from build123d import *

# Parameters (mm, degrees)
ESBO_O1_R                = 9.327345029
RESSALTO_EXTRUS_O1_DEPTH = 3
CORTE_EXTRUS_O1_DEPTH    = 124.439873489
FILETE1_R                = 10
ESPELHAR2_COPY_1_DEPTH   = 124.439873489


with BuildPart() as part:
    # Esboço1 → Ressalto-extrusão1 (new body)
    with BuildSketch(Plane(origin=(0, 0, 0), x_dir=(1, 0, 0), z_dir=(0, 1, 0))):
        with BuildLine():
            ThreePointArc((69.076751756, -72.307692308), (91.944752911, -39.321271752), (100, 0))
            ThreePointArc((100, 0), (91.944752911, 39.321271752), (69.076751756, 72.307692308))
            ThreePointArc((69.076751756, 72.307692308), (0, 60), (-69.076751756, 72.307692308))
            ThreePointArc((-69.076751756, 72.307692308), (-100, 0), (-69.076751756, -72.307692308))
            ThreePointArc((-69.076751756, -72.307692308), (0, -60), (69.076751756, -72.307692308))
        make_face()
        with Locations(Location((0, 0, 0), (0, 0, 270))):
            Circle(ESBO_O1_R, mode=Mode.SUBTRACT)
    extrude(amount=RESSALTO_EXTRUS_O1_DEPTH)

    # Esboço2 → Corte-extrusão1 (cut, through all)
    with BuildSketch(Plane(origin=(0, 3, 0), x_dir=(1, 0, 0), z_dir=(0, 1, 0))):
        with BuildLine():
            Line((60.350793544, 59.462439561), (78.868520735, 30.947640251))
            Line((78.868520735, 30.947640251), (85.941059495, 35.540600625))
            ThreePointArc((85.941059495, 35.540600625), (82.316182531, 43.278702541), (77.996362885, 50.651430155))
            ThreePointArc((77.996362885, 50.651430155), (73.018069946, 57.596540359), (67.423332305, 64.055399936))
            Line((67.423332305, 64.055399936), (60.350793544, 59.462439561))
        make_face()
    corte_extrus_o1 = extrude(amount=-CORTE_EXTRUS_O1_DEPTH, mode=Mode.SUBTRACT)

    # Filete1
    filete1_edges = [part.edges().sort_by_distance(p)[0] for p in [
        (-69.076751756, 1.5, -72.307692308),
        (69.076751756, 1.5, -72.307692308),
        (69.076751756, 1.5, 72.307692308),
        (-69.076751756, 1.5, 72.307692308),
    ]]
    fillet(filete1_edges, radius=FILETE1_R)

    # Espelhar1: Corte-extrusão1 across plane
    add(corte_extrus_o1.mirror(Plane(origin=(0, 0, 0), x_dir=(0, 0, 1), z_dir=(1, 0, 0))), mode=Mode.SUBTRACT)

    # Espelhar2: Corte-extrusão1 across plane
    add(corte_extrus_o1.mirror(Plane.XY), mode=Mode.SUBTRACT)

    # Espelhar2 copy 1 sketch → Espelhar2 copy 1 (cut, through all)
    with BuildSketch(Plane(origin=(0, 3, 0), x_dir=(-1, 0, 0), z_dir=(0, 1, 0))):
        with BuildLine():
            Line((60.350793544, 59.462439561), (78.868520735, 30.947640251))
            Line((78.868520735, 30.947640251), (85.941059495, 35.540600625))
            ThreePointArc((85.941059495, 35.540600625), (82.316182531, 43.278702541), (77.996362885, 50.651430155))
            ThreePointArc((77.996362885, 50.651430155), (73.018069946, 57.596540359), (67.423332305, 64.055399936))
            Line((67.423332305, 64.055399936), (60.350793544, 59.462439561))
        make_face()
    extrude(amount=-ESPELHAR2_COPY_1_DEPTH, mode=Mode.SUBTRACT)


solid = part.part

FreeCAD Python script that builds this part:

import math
import FreeCAD as App
import Part
import Sketcher
Q = App.Units.Quantity


def edges_at(feature, points):
    """Names of the edges that pass closest to the given points."""
    edges = feature.Shape.Edges
    near = lambda p: min(range(len(edges)), key=lambda i: edges[i].distToShape(Part.Vertex(*p))[0])
    return sorted({f"Edge{near(p) + 1}" for p in points})

doc = App.newDocument("Part")
body = doc.addObject("PartDesign::Body", "Body")

sketch1 = doc.addObject("Sketcher::SketchObject", "Sketch")
body.addObject(sketch1)
sketch1.AttachmentSupport = (doc.XZ_Plane, [""])
sketch1.MapMode = "FlatFace"
sketch1.addGeometry([
    Part.ArcOfCircle(Part.Circle(App.Vector(0, 0, 0), App.Vector(0, 0, 1), 100), math.radians(0), math.radians(46)),
    Part.ArcOfCircle(Part.Circle(App.Vector(0, 0, 0), App.Vector(0, 0, 1), 100), math.radians(-46), math.radians(0)),
    Part.ArcOfCircle(Part.Circle(App.Vector(0, -260, 0), App.Vector(0, 0, 1), 200), math.radians(70), math.radians(110)),
    Part.ArcOfCircle(Part.Circle(App.Vector(0, 0, 0), App.Vector(0, 0, 1), 100), math.radians(134), math.radians(226)),
    Part.ArcOfCircle(Part.Circle(App.Vector(0, 260, 0), App.Vector(0, 0, 1), 200), math.radians(-110), math.radians(-70)),
    Part.Circle(App.Vector(0, 0, 0), App.Vector(0, 0, 1), 9),
], False)
sketch1.addConstraint([
    Sketcher.Constraint("Tangent", 0, 1, 1, 2),
    Sketcher.Constraint("Coincident", 1, 1, 2, 1),
    Sketcher.Constraint("Coincident", 2, 2, 3, 2),
    Sketcher.Constraint("Coincident", 3, 1, 4, 1),
    Sketcher.Constraint("Coincident", 4, 2, 0, 2),
    Sketcher.Constraint("Coincident", 0, 3, -1, 1),
    Sketcher.Constraint("Coincident", 3, 3, -1, 1),
    Sketcher.Constraint("Coincident", 5, 3, -1, 1),
    Sketcher.Constraint("Equal", 0, 1),
    Sketcher.Constraint("Equal", 1, 3),
    Sketcher.Constraint("Equal", 2, 4),
    Sketcher.Constraint("Symmetric", 2, 3, 4, 3, -1, 1),
    Sketcher.Constraint("PointOnObject", 2, 3, -2),
    Sketcher.Constraint("PointOnObject", 0, 1, -1),
    Sketcher.Constraint("Radius", 0, Q("100 mm")),
    Sketcher.Constraint("Radius", 2, Q("200 mm")),
    Sketcher.Constraint("DistanceY", 2, 3, -1, 1, Q("260 mm")),
    Sketcher.Constraint("Diameter", 5, Q("18.65469 mm")),
])
pad1 = doc.addObject("PartDesign::Pad", "Pad")
body.addObject(pad1)
pad1.Profile = sketch1
pad1.Length = 3
pad1.Reversed = True

sketch2 = doc.addObject("Sketcher::SketchObject", "Sketch001")
body.addObject(sketch2)
sketch2.AttachmentSupport = (doc.XZ_Plane, [""])
sketch2.MapMode = "FlatFace"
sketch2.AttachmentOffset = App.Placement(App.Vector(0, 0, -3), App.Rotation())
sketch2.addGeometry([
    Part.LineSegment(App.Vector(60, -59, 0), App.Vector(79, -31, 0)),
    Part.LineSegment(App.Vector(79, -31, 0), App.Vector(86, -36, 0)),
    Part.ArcOfCircle(Part.Circle(App.Vector(0, 0, 0), App.Vector(0, 0, 1), 93), math.radians(-33), math.radians(-22.47)),
    Part.ArcOfCircle(Part.Circle(App.Vector(0, 0, 0), App.Vector(0, 0, 1), 93), math.radians(-43.53), math.radians(-33)),
    Part.LineSegment(App.Vector(67, -64, 0), App.Vector(60, -59, 0)),
], False)
sketch2.addConstraint([
    Sketcher.Constraint("Coincident", 0, 2, 1, 1),
    Sketcher.Constraint("Coincident", 1, 2, 2, 2),
    Sketcher.Constraint("Tangent", 2, 1, 3, 2),
    Sketcher.Constraint("Coincident", 3, 1, 4, 1),
    Sketcher.Constraint("Coincident", 4, 2, 0, 1),
    Sketcher.Constraint("Coincident", 2, 3, -1, 1),
    Sketcher.Constraint("Equal", 2, 3),
    Sketcher.Constraint("Perpendicular", 0, 1),
    Sketcher.Constraint("Parallel", 1, 4),
    Sketcher.Constraint("Equal", 1, 4),
    Sketcher.Constraint("Radius", 2, Q("93 mm")),
    Sketcher.Constraint("Angle", 0, Q("57 deg")),
    Sketcher.Constraint("Distance", 0, Q("34 mm")),
    Sketcher.Constraint("DistanceX", -1, 1, 0, 2, Q("78.868521 mm")),
    Sketcher.Constraint("DistanceY", 2, 1, -1, 1, Q("50.65143 mm")),
])
pocket1 = doc.addObject("PartDesign::Pocket", "Pocket")
body.addObject(pocket1)
pocket1.Profile = sketch2
pocket1.Type = "ThroughAll"
pocket1.Reversed = True
doc.recompute()

fillet = doc.addObject("PartDesign::Fillet", "Fillet")
body.addObject(fillet)
fillet.Base = (pocket1, edges_at(pocket1, [
    (-69.077, 1.5, -72.308),
    (69.077, 1.5, -72.308),
    (69.077, 1.5, 72.308),
    (-69.077, 1.5, 72.308),
]))
fillet.Radius = 10
doc.recompute()

mirrored = doc.addObject("PartDesign::Mirrored", "Mirrored")
body.addObject(mirrored)
mirrored.Originals = [pocket1]
mirrored.MirrorPlane = (doc.YZ_Plane, [""])
body.Tip = mirrored
doc.recompute()

mirrored2 = doc.addObject("PartDesign::Mirrored", "Mirrored001")
body.addObject(mirrored2)
mirrored2.Originals = [pocket1]
mirrored2.MirrorPlane = (doc.XY_Plane, [""])
body.Tip = mirrored2

sketch3 = doc.addObject("Sketcher::SketchObject", "Sketch002")
body.addObject(sketch3)
sketch3.AttachmentSupport = (doc.XZ_Plane, [""])
sketch3.MapMode = "FlatFace"
sketch3.AttachmentOffset = App.Placement(App.Vector(0, 0, -3), App.Rotation())
sketch3.addGeometry([
    Part.LineSegment(App.Vector(-60, 59, 0), App.Vector(-79, 31, 0)),
    Part.LineSegment(App.Vector(-79, 31, 0), App.Vector(-86, 36, 0)),
    Part.ArcOfCircle(Part.Circle(App.Vector(0, 0, 0), App.Vector(0, 0, 1), 93), math.radians(147), math.radians(157.53)),
    Part.ArcOfCircle(Part.Circle(App.Vector(0, 0, 0), App.Vector(0, 0, 1), 93), math.radians(136.47), math.radians(147)),
    Part.LineSegment(App.Vector(-67, 64, 0), App.Vector(-60, 59, 0)),
], False)
sketch3.addConstraint([
    Sketcher.Constraint("Coincident", 0, 2, 1, 1),
    Sketcher.Constraint("Coincident", 1, 2, 2, 2),
    Sketcher.Constraint("Tangent", 2, 1, 3, 2),
    Sketcher.Constraint("Coincident", 3, 1, 4, 1),
    Sketcher.Constraint("Coincident", 4, 2, 0, 1),
    Sketcher.Constraint("Coincident", 2, 3, -1, 1),
    Sketcher.Constraint("Equal", 2, 3),
    Sketcher.Constraint("Perpendicular", 0, 1),
    Sketcher.Constraint("Parallel", 1, 4),
    Sketcher.Constraint("Equal", 1, 4),
    Sketcher.Constraint("Radius", 2, Q("93 mm")),
    Sketcher.Constraint("Angle", 0, Q("-123 deg")),
    Sketcher.Constraint("Distance", 0, Q("34 mm")),
    Sketcher.Constraint("DistanceX", 0, 2, -1, 1, Q("78.868521 mm")),
    Sketcher.Constraint("DistanceY", -1, 1, 2, 1, Q("50.65143 mm")),
])
pocket2 = doc.addObject("PartDesign::Pocket", "Pocket001")
body.addObject(pocket2)
pocket2.Profile = sketch3
pocket2.Type = "ThroughAll"
pocket2.Reversed = True

doc.recompute()
